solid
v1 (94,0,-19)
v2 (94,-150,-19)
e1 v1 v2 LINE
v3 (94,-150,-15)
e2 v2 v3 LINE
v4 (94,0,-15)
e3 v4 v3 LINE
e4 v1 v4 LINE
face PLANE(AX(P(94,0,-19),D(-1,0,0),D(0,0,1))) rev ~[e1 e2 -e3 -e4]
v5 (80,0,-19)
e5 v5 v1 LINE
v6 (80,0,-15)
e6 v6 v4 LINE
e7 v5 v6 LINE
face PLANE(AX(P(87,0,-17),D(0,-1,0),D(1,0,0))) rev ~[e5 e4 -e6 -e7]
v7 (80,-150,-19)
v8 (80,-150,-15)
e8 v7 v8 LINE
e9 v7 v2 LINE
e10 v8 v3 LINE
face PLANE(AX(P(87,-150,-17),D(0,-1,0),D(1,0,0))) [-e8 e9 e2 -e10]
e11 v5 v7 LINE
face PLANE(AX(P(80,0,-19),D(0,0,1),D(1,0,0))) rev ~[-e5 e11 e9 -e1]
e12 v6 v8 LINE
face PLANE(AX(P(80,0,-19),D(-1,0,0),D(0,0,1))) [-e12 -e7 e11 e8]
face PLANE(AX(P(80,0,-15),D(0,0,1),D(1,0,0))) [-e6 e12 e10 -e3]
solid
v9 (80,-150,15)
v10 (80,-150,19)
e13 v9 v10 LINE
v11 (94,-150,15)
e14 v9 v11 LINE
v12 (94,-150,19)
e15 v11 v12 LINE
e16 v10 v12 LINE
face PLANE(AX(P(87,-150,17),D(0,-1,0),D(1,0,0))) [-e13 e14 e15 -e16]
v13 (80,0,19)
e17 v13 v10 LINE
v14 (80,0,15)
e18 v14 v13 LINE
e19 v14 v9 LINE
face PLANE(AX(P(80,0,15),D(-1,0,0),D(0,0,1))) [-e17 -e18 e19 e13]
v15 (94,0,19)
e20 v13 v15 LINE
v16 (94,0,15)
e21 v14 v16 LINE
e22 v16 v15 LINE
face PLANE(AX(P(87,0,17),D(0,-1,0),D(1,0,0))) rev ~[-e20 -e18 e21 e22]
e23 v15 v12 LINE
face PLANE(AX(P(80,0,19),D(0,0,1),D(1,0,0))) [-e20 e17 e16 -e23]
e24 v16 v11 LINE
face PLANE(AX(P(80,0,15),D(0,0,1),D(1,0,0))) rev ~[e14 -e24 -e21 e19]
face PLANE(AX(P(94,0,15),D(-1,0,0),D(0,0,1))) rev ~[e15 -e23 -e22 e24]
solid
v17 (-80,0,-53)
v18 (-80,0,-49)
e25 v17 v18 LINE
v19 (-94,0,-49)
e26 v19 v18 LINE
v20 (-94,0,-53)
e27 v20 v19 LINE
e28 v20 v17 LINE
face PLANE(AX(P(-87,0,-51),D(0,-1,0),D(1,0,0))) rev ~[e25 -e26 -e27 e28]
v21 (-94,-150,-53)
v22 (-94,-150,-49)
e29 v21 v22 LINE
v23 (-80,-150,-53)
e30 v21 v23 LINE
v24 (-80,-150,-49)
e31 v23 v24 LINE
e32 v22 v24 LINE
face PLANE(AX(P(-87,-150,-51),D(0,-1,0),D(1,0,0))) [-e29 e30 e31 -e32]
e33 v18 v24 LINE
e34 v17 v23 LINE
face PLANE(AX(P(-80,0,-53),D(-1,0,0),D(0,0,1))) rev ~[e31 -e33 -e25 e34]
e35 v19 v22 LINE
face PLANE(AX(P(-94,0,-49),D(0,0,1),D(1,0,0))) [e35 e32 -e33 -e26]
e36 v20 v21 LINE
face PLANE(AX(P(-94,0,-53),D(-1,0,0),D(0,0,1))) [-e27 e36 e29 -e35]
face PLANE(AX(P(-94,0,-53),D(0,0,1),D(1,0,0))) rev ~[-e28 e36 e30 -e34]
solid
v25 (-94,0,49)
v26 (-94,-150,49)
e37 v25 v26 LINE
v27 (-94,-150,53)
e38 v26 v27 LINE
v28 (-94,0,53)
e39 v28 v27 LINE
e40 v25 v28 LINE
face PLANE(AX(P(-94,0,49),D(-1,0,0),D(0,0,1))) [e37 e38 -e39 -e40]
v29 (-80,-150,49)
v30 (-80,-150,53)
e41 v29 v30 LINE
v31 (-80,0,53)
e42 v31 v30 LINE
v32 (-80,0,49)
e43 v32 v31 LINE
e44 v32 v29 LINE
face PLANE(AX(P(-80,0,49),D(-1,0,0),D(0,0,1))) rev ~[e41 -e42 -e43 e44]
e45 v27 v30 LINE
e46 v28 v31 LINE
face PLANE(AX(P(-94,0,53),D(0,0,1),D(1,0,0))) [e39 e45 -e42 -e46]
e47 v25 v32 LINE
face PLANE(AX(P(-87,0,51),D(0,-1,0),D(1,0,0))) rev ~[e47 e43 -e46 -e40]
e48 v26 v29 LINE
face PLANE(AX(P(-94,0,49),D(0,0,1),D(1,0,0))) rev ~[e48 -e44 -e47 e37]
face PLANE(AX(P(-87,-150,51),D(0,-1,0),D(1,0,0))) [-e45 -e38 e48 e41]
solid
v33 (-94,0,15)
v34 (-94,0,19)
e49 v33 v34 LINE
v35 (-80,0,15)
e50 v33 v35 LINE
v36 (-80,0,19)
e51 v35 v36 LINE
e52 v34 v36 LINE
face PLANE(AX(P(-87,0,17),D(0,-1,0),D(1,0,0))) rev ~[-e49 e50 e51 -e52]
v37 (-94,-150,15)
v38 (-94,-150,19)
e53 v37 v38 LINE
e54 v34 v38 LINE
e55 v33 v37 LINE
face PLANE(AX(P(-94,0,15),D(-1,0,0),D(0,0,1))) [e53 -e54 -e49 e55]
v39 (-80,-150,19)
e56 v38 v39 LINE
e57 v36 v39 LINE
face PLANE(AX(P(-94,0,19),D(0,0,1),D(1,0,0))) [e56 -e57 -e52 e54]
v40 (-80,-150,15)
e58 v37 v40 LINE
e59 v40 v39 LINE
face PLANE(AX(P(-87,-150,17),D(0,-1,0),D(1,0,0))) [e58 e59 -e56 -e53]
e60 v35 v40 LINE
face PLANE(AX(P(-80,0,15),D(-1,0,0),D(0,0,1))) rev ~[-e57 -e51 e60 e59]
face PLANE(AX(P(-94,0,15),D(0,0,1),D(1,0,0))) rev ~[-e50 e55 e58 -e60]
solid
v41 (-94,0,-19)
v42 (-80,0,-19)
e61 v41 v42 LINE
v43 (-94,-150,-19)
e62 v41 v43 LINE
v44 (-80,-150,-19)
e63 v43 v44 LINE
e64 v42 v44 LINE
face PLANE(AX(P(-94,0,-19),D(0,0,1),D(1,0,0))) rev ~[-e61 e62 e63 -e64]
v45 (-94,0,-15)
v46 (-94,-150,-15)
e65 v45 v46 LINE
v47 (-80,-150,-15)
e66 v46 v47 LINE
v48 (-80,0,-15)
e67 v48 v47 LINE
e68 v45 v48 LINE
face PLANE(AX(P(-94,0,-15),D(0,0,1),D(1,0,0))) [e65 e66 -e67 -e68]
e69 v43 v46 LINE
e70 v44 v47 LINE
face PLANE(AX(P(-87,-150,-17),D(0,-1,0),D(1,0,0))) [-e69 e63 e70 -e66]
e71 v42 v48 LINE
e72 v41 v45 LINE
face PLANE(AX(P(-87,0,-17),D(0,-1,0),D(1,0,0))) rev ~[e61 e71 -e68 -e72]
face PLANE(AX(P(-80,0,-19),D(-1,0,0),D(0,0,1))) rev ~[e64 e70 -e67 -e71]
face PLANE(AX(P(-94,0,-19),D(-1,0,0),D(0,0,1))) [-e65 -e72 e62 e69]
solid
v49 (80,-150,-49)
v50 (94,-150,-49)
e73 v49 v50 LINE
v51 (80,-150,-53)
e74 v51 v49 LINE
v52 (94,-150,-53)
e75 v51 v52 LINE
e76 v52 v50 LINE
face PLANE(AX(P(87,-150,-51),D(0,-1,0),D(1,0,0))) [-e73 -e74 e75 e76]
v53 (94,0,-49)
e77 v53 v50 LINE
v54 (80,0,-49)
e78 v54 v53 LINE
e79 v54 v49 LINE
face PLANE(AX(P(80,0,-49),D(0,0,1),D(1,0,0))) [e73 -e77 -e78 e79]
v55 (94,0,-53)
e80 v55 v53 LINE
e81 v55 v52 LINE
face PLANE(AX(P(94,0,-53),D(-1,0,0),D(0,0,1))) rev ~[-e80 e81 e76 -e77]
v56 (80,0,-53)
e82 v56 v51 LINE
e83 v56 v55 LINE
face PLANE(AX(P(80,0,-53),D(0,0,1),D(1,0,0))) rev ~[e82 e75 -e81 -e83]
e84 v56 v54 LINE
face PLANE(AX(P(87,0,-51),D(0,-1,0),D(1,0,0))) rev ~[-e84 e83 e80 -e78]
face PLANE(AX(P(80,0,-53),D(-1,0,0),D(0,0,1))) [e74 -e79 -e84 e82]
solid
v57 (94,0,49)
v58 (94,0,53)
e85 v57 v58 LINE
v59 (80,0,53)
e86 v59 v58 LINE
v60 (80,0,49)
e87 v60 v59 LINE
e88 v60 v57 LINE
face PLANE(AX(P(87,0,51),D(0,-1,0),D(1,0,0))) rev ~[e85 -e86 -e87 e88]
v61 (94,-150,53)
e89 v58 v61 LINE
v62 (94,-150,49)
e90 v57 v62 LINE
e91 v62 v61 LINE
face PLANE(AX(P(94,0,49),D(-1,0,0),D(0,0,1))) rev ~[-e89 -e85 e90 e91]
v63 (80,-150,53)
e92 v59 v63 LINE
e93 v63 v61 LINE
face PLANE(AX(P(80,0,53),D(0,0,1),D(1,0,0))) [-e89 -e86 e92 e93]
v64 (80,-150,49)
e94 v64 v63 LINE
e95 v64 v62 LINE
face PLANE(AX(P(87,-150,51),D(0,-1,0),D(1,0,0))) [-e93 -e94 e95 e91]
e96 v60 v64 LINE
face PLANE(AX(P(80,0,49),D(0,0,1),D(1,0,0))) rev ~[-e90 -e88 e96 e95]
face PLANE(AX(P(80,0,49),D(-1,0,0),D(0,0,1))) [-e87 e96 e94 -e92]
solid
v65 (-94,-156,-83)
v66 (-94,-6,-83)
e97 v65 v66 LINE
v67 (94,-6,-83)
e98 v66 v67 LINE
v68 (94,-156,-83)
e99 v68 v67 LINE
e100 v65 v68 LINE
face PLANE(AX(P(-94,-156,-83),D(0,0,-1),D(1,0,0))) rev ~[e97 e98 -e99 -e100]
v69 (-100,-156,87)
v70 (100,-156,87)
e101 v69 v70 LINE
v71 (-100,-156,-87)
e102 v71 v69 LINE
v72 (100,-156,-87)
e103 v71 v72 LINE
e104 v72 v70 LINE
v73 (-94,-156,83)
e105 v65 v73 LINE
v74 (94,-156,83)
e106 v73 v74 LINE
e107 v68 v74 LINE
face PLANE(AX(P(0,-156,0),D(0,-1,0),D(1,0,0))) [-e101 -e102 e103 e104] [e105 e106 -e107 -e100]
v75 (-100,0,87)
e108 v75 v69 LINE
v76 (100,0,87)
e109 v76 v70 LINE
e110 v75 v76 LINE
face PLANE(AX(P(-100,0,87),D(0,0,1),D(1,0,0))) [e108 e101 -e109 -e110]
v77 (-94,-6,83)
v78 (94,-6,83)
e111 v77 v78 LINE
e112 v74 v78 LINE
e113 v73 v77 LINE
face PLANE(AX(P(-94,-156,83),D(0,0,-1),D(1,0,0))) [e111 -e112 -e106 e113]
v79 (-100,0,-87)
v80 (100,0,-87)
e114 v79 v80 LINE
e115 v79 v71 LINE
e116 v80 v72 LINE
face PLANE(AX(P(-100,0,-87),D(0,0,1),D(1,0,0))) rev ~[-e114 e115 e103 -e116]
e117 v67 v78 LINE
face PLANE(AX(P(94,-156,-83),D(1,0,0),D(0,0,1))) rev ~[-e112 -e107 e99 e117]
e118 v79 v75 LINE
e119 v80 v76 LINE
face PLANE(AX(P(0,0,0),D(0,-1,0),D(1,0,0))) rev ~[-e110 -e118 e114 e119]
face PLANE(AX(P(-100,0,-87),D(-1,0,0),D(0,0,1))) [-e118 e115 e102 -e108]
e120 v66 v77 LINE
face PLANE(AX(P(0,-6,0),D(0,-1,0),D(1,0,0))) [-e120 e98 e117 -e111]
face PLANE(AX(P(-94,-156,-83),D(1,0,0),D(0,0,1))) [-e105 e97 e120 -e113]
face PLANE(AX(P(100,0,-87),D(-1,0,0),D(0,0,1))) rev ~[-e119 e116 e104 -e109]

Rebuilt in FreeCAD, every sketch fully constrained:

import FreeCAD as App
import Part
import Sketcher

V = App.Vector

doc = App.newDocument("Part")
body = doc.addObject("PartDesign::Body", "Body")

sketch1 = body.newObject("Sketcher::SketchObject", "Sketch")
sketch1.AttachmentSupport = (doc.getObject("XZ_Plane"), [""])
sketch1.MapMode = "FlatFace"
sketch1.addGeometry(Part.LineSegment(V(-100, 87, 0), V(-100, -87, 0)), False)
sketch1.addGeometry(Part.LineSegment(V(-100, -87, 0), V(100, -87, 0)), False)
sketch1.addGeometry(Part.LineSegment(V(100, -87, 0), V(100, 87, 0)), False)
sketch1.addGeometry(Part.LineSegment(V(100, 87, 0), V(-100, 87, 0)), False)
sketch1.addConstraint(Sketcher.Constraint("Coincident", 0, 2, 1, 1))
sketch1.addConstraint(Sketcher.Constraint("Coincident", 1, 2, 2, 1))
sketch1.addConstraint(Sketcher.Constraint("Coincident", 2, 2, 3, 1))
sketch1.addConstraint(Sketcher.Constraint("Coincident", 3, 2, 0, 1))
sketch1.addConstraint(Sketcher.Constraint("Vertical", 0))
sketch1.addConstraint(Sketcher.Constraint("Horizontal", 1))
sketch1.addConstraint(Sketcher.Constraint("Vertical", 2))
sketch1.addConstraint(Sketcher.Constraint("Horizontal", 3))
sketch1.addConstraint(Sketcher.Constraint("Symmetric", 0, 2, 2, 2, -1, 1))
sketch1.addConstraint(Sketcher.Constraint("DistanceX", 1, 1, 1, 2, 200.0))
sketch1.addConstraint(Sketcher.Constraint("DistanceY", 0, 2, 0, 1, 174.0))
pad1 = body.newObject("PartDesign::Pad", "Pad")
pad1.Profile = sketch1
pad1.Length = 156

sketch2 = body.newObject("Sketcher::SketchObject", "Sketch001")
sketch2.AttachmentSupport = (doc.getObject("XZ_Plane"), [""])
sketch2.MapMode = "FlatFace"
sketch2.AttachmentOffset = App.Placement(V(0, 0, 156), App.Rotation())
sketch2.addGeometry(Part.LineSegment(V(-94, 83, 0), V(-94, -83, 0)), False)
sketch2.addGeometry(Part.LineSegment(V(-94, -83, 0), V(94, -83, 0)), False)
sketch2.addGeometry(Part.LineSegment(V(94, -83, 0), V(94, 83, 0)), False)
sketch2.addGeometry(Part.LineSegment(V(94, 83, 0), V(-94, 83, 0)), False)
sketch2.addConstraint(Sketcher.Constraint("Coincident", 0, 2, 1, 1))
sketch2.addConstraint(Sketcher.Constraint("Coincident", 1, 2, 2, 1))
sketch2.addConstraint(Sketcher.Constraint("Coincident", 2, 2, 3, 1))
sketch2.addConstraint(Sketcher.Constraint("Coincident", 3, 2, 0, 1))
sketch2.addConstraint(Sketcher.Constraint("Vertical", 0))
sketch2.addConstraint(Sketcher.Constraint("Horizontal", 1))
sketch2.addConstraint(Sketcher.Constraint("Vertical", 2))
sketch2.addConstraint(Sketcher.Constraint("Horizontal", 3))
sketch2.addConstraint(Sketcher.Constraint("Symmetric", 0, 2, 2, 2, -1, 1))
sketch2.addConstraint(Sketcher.Constraint("DistanceX", 1, 1, 1, 2, 188.0))
sketch2.addConstraint(Sketcher.Constraint("DistanceY", 0, 2, 0, 1, 166.0))
pocket1 = body.newObject("PartDesign::Pocket", "Pocket")
pocket1.Profile = sketch2
pocket1.Length = 150
body2 = doc.addObject("PartDesign::Body", "Body001")
body2.AllowCompound = True

sketch3 = body2.newObject("Sketcher::SketchObject", "Sketch002")
sketch3.AttachmentSupport = (doc.getObject("XZ_Plane001"), [""])
sketch3.MapMode = "FlatFace"
sketch3.addGeometry(Part.LineSegment(V(-94, 53, 0), V(-94, 49, 0)), False)
sketch3.addGeometry(Part.LineSegment(V(-94, 49, 0), V(-80, 49, 0)), False)
sketch3.addGeometry(Part.LineSegment(V(-80, 49, 0), V(-80, 53, 0)), False)
sketch3.addGeometry(Part.LineSegment(V(-80, 53, 0), V(-94, 53, 0)), False)
sketch3.addGeometry(Part.LineSegment(V(-94, 19, 0), V(-94, 15, 0)), False)
sketch3.addGeometry(Part.LineSegment(V(-94, 15, 0), V(-80, 15, 0)), False)
sketch3.addGeometry(Part.LineSegment(V(-80, 15, 0), V(-80, 19, 0)), False)
sketch3.addGeometry(Part.LineSegment(V(-80, 19, 0), V(-94, 19, 0)), False)
sketch3.addGeometry(Part.LineSegment(V(-94, -15, 0), V(-94, -19, 0)), False)
sketch3.addGeometry(Part.LineSegment(V(-94, -19, 0), V(-80, -19, 0)), False)
sketch3.addGeometry(Part.LineSegment(V(-80, -19, 0), V(-80, -15, 0)), False)
sketch3.addGeometry(Part.LineSegment(V(-80, -15, 0), V(-94, -15, 0)), False)
sketch3.addGeometry(Part.LineSegment(V(-94, -49, 0), V(-94, -53, 0)), False)
sketch3.addGeometry(Part.LineSegment(V(-94, -53, 0), V(-80, -53, 0)), False)
sketch3.addGeometry(Part.LineSegment(V(-80, -53, 0), V(-80, -49, 0)), False)
sketch3.addGeometry(Part.LineSegment(V(-80, -49, 0), V(-94, -49, 0)), False)
sketch3.addGeometry(Part.LineSegment(V(80, -49, 0), V(80, -53, 0)), False)
sketch3.addGeometry(Part.LineSegment(V(80, -53, 0), V(94, -53, 0)), False)
sketch3.addGeometry(Part.LineSegment(V(94, -53, 0), V(94, -49, 0)), False)
sketch3.addGeometry(Part.LineSegment(V(94, -49, 0), V(80, -49, 0)), False)
sketch3.addGeometry(Part.LineSegment(V(80, -15, 0), V(80, -19, 0)), False)
sketch3.addGeometry(Part.LineSegment(V(80, -19, 0), V(94, -19, 0)), False)
sketch3.addGeometry(Part.LineSegment(V(94, -19, 0), V(94, -15, 0)), False)
sketch3.addGeometry(Part.LineSegment(V(94, -15, 0), V(80, -15, 0)), False)
sketch3.addGeometry(Part.LineSegment(V(80, 19, 0), V(80, 15, 0)), False)
sketch3.addGeometry(Part.LineSegment(V(80, 15, 0), V(94, 15, 0)), False)
sketch3.addGeometry(Part.LineSegment(V(94, 15, 0), V(94, 19, 0)), False)
sketch3.addGeometry(Part.LineSegment(V(94, 19, 0), V(80, 19, 0)), False)
sketch3.addGeometry(Part.LineSegment(V(80, 53, 0), V(80, 49, 0)), False)
sketch3.addGeometry(Part.LineSegment(V(80, 49, 0), V(94, 49, 0)), False)
sketch3.addGeometry(Part.LineSegment(V(94, 49, 0), V(94, 53, 0)), False)
sketch3.addGeometry(Part.LineSegment(V(94, 53, 0), V(80, 53, 0)), False)
sketch3.addConstraint(Sketcher.Constraint("Coincident", 0, 2, 1, 1))
sketch3.addConstraint(Sketcher.Constraint("Coincident", 1, 2, 2, 1))
sketch3.addConstraint(Sketcher.Constraint("Coincident", 2, 2, 3, 1))
sketch3.addConstraint(Sketcher.Constraint("Coincident", 3, 2, 0, 1))
sketch3.addConstraint(Sketcher.Constraint("Coincident", 4, 2, 5, 1))
sketch3.addConstraint(Sketcher.Constraint("Coincident", 5, 2, 6, 1))
sketch3.addConstraint(Sketcher.Constraint("Coincident", 6, 2, 7, 1))
sketch3.addConstraint(Sketcher.Constraint("Coincident", 7, 2, 4, 1))
sketch3.addConstraint(Sketcher.Constraint("Coincident", 8, 2, 9, 1))
sketch3.addConstraint(Sketcher.Constraint("Coincident", 9, 2, 10, 1))
sketch3.addConstraint(Sketcher.Constraint("Coincident", 10, 2, 11, 1))
sketch3.addConstraint(Sketcher.Constraint("Coincident", 11, 2, 8, 1))
sketch3.addConstraint(Sketcher.Constraint("Coincident", 12, 2, 13, 1))
sketch3.addConstraint(Sketcher.Constraint("Coincident", 13, 2, 14, 1))
sketch3.addConstraint(Sketcher.Constraint("Coincident", 14, 2, 15, 1))
sketch3.addConstraint(Sketcher.Constraint("Coincident", 15, 2, 12, 1))
sketch3.addConstraint(Sketcher.Constraint("Coincident", 16, 2, 17, 1))
sketch3.addConstraint(Sketcher.Constraint("Coincident", 17, 2, 18, 1))
sketch3.addConstraint(Sketcher.Constraint("Coincident", 18, 2, 19, 1))
sketch3.addConstraint(Sketcher.Constraint("Coincident", 19, 2, 16, 1))
sketch3.addConstraint(Sketcher.Constraint("Coincident", 20, 2, 21, 1))
sketch3.addConstraint(Sketcher.Constraint("Coincident", 21, 2, 22, 1))
sketch3.addConstraint(Sketcher.Constraint("Coincident", 22, 2, 23, 1))
sketch3.addConstraint(Sketcher.Constraint("Coincident", 23, 2, 20, 1))
sketch3.addConstraint(Sketcher.Constraint("Coincident", 24, 2, 25, 1))
sketch3.addConstraint(Sketcher.Constraint("Coincident", 25, 2, 26, 1))
sketch3.addConstraint(Sketcher.Constraint("Coincident", 26, 2, 27, 1))
sketch3.addConstraint(Sketcher.Constraint("Coincident", 27, 2, 24, 1))
sketch3.addConstraint(Sketcher.Constraint("Coincident", 28, 2, 29, 1))
sketch3.addConstraint(Sketcher.Constraint("Coincident", 29, 2, 30, 1))
sketch3.addConstraint(Sketcher.Constraint("Coincident", 30, 2, 31, 1))
sketch3.addConstraint(Sketcher.Constraint("Coincident", 31, 2, 28, 1))
sketch3.addConstraint(Sketcher.Constraint("Vertical", 0))
sketch3.addConstraint(Sketcher.Constraint("Horizontal", 1))
sketch3.addConstraint(Sketcher.Constraint("Vertical", 2))
sketch3.addConstraint(Sketcher.Constraint("Horizontal", 3))
sketch3.addConstraint(Sketcher.Constraint("Vertical", 4))
sketch3.addConstraint(Sketcher.Constraint("Horizontal", 5))
sketch3.addConstraint(Sketcher.Constraint("Vertical", 6))
sketch3.addConstraint(Sketcher.Constraint("Horizontal", 7))
sketch3.addConstraint(Sketcher.Constraint("Vertical", 8))
sketch3.addConstraint(Sketcher.Constraint("Horizontal", 9))
sketch3.addConstraint(Sketcher.Constraint("Vertical", 10))
sketch3.addConstraint(Sketcher.Constraint("Horizontal", 11))
sketch3.addConstraint(Sketcher.Constraint("Vertical", 12))
sketch3.addConstraint(Sketcher.Constraint("Horizontal", 13))
sketch3.addConstraint(Sketcher.Constraint("Vertical", 14))
sketch3.addConstraint(Sketcher.Constraint("Horizontal", 15))
sketch3.addConstraint(Sketcher.Constraint("Vertical", 16))
sketch3.addConstraint(Sketcher.Constraint("Horizontal", 17))
sketch3.addConstraint(Sketcher.Constraint("Vertical", 18))
sketch3.addConstraint(Sketcher.Constraint("Horizontal", 19))
sketch3.addConstraint(Sketcher.Constraint("Vertical", 20))
sketch3.addConstraint(Sketcher.Constraint("Horizontal", 21))
sketch3.addConstraint(Sketcher.Constraint("Vertical", 22))
sketch3.addConstraint(Sketcher.Constraint("Horizontal", 23))
sketch3.addConstraint(Sketcher.Constraint("Vertical", 24))
sketch3.addConstraint(Sketcher.Constraint("Horizontal", 25))
sketch3.addConstraint(Sketcher.Constraint("Vertical", 26))
sketch3.addConstraint(Sketcher.Constraint("Horizontal", 27))
sketch3.addConstraint(Sketcher.Constraint("Vertical", 28))
sketch3.addConstraint(Sketcher.Constraint("Horizontal", 29))
sketch3.addConstraint(Sketcher.Constraint("Vertical", 30))
sketch3.addConstraint(Sketcher.Constraint("Horizontal", 31))
sketch3.addConstraint(Sketcher.Constraint("Symmetric", 2, 2, 16, 2, -1, 1))
sketch3.addConstraint(Sketcher.Constraint("Symmetric", 0, 2, 18, 2, -1, 1))
sketch3.addConstraint(Sketcher.Constraint("Symmetric", 6, 2, 20, 2, -1, 1))
sketch3.addConstraint(Sketcher.Constraint("Symmetric", 4, 2, 22, 2, -1, 1))
sketch3.addConstraint(Sketcher.Constraint("Symmetric", 10, 2, 24, 2, -1, 1))
sketch3.addConstraint(Sketcher.Constraint("Symmetric", 8, 2, 26, 2, -1, 1))
sketch3.addConstraint(Sketcher.Constraint("Symmetric", 14, 2, 28, 2, -1, 1))
sketch3.addConstraint(Sketcher.Constraint("Symmetric", 12, 2, 30, 2, -1, 1))
sketch3.addConstraint(Sketcher.Constraint("Symmetric", 13, 2, 16, 2, -2))
sketch3.addConstraint(Sketcher.Constraint("Symmetric", 15, 2, 18, 2, -2))
sketch3.addConstraint(Sketcher.Constraint("Symmetric", 9, 2, 20, 2, -2))
sketch3.addConstraint(Sketcher.Constraint("Symmetric", 11, 2, 22, 2, -2))
sketch3.addConstraint(Sketcher.Constraint("Vertical", 3, 2, 4, 2))
sketch3.addConstraint(Sketcher.Constraint("Vertical", 2, 2, 5, 2))
sketch3.addConstraint(Sketcher.Constraint("Equal", 2, 4))
sketch3.addConstraint(Sketcher.Constraint("DistanceX", 1, 1, 1, 2, 14.0))
sketch3.addConstraint(Sketcher.Constraint("DistanceY", 0, 2, 0, 1, 4.0))
sketch3.addConstraint(Sketcher.Constraint("DistanceX", 0, 2, -1, 1, 94.0))
sketch3.addConstraint(Sketcher.Constraint("DistanceY", -1, 1, 0, 2, 49.0))
sketch3.addConstraint(Sketcher.Constraint("DistanceY", -1, 1, 4, 2, 15.0))
pad2 = body2.newObject("PartDesign::Pad", "Pad001")
pad2.Profile = sketch3
pad2.Length = 150

doc.recompute()
